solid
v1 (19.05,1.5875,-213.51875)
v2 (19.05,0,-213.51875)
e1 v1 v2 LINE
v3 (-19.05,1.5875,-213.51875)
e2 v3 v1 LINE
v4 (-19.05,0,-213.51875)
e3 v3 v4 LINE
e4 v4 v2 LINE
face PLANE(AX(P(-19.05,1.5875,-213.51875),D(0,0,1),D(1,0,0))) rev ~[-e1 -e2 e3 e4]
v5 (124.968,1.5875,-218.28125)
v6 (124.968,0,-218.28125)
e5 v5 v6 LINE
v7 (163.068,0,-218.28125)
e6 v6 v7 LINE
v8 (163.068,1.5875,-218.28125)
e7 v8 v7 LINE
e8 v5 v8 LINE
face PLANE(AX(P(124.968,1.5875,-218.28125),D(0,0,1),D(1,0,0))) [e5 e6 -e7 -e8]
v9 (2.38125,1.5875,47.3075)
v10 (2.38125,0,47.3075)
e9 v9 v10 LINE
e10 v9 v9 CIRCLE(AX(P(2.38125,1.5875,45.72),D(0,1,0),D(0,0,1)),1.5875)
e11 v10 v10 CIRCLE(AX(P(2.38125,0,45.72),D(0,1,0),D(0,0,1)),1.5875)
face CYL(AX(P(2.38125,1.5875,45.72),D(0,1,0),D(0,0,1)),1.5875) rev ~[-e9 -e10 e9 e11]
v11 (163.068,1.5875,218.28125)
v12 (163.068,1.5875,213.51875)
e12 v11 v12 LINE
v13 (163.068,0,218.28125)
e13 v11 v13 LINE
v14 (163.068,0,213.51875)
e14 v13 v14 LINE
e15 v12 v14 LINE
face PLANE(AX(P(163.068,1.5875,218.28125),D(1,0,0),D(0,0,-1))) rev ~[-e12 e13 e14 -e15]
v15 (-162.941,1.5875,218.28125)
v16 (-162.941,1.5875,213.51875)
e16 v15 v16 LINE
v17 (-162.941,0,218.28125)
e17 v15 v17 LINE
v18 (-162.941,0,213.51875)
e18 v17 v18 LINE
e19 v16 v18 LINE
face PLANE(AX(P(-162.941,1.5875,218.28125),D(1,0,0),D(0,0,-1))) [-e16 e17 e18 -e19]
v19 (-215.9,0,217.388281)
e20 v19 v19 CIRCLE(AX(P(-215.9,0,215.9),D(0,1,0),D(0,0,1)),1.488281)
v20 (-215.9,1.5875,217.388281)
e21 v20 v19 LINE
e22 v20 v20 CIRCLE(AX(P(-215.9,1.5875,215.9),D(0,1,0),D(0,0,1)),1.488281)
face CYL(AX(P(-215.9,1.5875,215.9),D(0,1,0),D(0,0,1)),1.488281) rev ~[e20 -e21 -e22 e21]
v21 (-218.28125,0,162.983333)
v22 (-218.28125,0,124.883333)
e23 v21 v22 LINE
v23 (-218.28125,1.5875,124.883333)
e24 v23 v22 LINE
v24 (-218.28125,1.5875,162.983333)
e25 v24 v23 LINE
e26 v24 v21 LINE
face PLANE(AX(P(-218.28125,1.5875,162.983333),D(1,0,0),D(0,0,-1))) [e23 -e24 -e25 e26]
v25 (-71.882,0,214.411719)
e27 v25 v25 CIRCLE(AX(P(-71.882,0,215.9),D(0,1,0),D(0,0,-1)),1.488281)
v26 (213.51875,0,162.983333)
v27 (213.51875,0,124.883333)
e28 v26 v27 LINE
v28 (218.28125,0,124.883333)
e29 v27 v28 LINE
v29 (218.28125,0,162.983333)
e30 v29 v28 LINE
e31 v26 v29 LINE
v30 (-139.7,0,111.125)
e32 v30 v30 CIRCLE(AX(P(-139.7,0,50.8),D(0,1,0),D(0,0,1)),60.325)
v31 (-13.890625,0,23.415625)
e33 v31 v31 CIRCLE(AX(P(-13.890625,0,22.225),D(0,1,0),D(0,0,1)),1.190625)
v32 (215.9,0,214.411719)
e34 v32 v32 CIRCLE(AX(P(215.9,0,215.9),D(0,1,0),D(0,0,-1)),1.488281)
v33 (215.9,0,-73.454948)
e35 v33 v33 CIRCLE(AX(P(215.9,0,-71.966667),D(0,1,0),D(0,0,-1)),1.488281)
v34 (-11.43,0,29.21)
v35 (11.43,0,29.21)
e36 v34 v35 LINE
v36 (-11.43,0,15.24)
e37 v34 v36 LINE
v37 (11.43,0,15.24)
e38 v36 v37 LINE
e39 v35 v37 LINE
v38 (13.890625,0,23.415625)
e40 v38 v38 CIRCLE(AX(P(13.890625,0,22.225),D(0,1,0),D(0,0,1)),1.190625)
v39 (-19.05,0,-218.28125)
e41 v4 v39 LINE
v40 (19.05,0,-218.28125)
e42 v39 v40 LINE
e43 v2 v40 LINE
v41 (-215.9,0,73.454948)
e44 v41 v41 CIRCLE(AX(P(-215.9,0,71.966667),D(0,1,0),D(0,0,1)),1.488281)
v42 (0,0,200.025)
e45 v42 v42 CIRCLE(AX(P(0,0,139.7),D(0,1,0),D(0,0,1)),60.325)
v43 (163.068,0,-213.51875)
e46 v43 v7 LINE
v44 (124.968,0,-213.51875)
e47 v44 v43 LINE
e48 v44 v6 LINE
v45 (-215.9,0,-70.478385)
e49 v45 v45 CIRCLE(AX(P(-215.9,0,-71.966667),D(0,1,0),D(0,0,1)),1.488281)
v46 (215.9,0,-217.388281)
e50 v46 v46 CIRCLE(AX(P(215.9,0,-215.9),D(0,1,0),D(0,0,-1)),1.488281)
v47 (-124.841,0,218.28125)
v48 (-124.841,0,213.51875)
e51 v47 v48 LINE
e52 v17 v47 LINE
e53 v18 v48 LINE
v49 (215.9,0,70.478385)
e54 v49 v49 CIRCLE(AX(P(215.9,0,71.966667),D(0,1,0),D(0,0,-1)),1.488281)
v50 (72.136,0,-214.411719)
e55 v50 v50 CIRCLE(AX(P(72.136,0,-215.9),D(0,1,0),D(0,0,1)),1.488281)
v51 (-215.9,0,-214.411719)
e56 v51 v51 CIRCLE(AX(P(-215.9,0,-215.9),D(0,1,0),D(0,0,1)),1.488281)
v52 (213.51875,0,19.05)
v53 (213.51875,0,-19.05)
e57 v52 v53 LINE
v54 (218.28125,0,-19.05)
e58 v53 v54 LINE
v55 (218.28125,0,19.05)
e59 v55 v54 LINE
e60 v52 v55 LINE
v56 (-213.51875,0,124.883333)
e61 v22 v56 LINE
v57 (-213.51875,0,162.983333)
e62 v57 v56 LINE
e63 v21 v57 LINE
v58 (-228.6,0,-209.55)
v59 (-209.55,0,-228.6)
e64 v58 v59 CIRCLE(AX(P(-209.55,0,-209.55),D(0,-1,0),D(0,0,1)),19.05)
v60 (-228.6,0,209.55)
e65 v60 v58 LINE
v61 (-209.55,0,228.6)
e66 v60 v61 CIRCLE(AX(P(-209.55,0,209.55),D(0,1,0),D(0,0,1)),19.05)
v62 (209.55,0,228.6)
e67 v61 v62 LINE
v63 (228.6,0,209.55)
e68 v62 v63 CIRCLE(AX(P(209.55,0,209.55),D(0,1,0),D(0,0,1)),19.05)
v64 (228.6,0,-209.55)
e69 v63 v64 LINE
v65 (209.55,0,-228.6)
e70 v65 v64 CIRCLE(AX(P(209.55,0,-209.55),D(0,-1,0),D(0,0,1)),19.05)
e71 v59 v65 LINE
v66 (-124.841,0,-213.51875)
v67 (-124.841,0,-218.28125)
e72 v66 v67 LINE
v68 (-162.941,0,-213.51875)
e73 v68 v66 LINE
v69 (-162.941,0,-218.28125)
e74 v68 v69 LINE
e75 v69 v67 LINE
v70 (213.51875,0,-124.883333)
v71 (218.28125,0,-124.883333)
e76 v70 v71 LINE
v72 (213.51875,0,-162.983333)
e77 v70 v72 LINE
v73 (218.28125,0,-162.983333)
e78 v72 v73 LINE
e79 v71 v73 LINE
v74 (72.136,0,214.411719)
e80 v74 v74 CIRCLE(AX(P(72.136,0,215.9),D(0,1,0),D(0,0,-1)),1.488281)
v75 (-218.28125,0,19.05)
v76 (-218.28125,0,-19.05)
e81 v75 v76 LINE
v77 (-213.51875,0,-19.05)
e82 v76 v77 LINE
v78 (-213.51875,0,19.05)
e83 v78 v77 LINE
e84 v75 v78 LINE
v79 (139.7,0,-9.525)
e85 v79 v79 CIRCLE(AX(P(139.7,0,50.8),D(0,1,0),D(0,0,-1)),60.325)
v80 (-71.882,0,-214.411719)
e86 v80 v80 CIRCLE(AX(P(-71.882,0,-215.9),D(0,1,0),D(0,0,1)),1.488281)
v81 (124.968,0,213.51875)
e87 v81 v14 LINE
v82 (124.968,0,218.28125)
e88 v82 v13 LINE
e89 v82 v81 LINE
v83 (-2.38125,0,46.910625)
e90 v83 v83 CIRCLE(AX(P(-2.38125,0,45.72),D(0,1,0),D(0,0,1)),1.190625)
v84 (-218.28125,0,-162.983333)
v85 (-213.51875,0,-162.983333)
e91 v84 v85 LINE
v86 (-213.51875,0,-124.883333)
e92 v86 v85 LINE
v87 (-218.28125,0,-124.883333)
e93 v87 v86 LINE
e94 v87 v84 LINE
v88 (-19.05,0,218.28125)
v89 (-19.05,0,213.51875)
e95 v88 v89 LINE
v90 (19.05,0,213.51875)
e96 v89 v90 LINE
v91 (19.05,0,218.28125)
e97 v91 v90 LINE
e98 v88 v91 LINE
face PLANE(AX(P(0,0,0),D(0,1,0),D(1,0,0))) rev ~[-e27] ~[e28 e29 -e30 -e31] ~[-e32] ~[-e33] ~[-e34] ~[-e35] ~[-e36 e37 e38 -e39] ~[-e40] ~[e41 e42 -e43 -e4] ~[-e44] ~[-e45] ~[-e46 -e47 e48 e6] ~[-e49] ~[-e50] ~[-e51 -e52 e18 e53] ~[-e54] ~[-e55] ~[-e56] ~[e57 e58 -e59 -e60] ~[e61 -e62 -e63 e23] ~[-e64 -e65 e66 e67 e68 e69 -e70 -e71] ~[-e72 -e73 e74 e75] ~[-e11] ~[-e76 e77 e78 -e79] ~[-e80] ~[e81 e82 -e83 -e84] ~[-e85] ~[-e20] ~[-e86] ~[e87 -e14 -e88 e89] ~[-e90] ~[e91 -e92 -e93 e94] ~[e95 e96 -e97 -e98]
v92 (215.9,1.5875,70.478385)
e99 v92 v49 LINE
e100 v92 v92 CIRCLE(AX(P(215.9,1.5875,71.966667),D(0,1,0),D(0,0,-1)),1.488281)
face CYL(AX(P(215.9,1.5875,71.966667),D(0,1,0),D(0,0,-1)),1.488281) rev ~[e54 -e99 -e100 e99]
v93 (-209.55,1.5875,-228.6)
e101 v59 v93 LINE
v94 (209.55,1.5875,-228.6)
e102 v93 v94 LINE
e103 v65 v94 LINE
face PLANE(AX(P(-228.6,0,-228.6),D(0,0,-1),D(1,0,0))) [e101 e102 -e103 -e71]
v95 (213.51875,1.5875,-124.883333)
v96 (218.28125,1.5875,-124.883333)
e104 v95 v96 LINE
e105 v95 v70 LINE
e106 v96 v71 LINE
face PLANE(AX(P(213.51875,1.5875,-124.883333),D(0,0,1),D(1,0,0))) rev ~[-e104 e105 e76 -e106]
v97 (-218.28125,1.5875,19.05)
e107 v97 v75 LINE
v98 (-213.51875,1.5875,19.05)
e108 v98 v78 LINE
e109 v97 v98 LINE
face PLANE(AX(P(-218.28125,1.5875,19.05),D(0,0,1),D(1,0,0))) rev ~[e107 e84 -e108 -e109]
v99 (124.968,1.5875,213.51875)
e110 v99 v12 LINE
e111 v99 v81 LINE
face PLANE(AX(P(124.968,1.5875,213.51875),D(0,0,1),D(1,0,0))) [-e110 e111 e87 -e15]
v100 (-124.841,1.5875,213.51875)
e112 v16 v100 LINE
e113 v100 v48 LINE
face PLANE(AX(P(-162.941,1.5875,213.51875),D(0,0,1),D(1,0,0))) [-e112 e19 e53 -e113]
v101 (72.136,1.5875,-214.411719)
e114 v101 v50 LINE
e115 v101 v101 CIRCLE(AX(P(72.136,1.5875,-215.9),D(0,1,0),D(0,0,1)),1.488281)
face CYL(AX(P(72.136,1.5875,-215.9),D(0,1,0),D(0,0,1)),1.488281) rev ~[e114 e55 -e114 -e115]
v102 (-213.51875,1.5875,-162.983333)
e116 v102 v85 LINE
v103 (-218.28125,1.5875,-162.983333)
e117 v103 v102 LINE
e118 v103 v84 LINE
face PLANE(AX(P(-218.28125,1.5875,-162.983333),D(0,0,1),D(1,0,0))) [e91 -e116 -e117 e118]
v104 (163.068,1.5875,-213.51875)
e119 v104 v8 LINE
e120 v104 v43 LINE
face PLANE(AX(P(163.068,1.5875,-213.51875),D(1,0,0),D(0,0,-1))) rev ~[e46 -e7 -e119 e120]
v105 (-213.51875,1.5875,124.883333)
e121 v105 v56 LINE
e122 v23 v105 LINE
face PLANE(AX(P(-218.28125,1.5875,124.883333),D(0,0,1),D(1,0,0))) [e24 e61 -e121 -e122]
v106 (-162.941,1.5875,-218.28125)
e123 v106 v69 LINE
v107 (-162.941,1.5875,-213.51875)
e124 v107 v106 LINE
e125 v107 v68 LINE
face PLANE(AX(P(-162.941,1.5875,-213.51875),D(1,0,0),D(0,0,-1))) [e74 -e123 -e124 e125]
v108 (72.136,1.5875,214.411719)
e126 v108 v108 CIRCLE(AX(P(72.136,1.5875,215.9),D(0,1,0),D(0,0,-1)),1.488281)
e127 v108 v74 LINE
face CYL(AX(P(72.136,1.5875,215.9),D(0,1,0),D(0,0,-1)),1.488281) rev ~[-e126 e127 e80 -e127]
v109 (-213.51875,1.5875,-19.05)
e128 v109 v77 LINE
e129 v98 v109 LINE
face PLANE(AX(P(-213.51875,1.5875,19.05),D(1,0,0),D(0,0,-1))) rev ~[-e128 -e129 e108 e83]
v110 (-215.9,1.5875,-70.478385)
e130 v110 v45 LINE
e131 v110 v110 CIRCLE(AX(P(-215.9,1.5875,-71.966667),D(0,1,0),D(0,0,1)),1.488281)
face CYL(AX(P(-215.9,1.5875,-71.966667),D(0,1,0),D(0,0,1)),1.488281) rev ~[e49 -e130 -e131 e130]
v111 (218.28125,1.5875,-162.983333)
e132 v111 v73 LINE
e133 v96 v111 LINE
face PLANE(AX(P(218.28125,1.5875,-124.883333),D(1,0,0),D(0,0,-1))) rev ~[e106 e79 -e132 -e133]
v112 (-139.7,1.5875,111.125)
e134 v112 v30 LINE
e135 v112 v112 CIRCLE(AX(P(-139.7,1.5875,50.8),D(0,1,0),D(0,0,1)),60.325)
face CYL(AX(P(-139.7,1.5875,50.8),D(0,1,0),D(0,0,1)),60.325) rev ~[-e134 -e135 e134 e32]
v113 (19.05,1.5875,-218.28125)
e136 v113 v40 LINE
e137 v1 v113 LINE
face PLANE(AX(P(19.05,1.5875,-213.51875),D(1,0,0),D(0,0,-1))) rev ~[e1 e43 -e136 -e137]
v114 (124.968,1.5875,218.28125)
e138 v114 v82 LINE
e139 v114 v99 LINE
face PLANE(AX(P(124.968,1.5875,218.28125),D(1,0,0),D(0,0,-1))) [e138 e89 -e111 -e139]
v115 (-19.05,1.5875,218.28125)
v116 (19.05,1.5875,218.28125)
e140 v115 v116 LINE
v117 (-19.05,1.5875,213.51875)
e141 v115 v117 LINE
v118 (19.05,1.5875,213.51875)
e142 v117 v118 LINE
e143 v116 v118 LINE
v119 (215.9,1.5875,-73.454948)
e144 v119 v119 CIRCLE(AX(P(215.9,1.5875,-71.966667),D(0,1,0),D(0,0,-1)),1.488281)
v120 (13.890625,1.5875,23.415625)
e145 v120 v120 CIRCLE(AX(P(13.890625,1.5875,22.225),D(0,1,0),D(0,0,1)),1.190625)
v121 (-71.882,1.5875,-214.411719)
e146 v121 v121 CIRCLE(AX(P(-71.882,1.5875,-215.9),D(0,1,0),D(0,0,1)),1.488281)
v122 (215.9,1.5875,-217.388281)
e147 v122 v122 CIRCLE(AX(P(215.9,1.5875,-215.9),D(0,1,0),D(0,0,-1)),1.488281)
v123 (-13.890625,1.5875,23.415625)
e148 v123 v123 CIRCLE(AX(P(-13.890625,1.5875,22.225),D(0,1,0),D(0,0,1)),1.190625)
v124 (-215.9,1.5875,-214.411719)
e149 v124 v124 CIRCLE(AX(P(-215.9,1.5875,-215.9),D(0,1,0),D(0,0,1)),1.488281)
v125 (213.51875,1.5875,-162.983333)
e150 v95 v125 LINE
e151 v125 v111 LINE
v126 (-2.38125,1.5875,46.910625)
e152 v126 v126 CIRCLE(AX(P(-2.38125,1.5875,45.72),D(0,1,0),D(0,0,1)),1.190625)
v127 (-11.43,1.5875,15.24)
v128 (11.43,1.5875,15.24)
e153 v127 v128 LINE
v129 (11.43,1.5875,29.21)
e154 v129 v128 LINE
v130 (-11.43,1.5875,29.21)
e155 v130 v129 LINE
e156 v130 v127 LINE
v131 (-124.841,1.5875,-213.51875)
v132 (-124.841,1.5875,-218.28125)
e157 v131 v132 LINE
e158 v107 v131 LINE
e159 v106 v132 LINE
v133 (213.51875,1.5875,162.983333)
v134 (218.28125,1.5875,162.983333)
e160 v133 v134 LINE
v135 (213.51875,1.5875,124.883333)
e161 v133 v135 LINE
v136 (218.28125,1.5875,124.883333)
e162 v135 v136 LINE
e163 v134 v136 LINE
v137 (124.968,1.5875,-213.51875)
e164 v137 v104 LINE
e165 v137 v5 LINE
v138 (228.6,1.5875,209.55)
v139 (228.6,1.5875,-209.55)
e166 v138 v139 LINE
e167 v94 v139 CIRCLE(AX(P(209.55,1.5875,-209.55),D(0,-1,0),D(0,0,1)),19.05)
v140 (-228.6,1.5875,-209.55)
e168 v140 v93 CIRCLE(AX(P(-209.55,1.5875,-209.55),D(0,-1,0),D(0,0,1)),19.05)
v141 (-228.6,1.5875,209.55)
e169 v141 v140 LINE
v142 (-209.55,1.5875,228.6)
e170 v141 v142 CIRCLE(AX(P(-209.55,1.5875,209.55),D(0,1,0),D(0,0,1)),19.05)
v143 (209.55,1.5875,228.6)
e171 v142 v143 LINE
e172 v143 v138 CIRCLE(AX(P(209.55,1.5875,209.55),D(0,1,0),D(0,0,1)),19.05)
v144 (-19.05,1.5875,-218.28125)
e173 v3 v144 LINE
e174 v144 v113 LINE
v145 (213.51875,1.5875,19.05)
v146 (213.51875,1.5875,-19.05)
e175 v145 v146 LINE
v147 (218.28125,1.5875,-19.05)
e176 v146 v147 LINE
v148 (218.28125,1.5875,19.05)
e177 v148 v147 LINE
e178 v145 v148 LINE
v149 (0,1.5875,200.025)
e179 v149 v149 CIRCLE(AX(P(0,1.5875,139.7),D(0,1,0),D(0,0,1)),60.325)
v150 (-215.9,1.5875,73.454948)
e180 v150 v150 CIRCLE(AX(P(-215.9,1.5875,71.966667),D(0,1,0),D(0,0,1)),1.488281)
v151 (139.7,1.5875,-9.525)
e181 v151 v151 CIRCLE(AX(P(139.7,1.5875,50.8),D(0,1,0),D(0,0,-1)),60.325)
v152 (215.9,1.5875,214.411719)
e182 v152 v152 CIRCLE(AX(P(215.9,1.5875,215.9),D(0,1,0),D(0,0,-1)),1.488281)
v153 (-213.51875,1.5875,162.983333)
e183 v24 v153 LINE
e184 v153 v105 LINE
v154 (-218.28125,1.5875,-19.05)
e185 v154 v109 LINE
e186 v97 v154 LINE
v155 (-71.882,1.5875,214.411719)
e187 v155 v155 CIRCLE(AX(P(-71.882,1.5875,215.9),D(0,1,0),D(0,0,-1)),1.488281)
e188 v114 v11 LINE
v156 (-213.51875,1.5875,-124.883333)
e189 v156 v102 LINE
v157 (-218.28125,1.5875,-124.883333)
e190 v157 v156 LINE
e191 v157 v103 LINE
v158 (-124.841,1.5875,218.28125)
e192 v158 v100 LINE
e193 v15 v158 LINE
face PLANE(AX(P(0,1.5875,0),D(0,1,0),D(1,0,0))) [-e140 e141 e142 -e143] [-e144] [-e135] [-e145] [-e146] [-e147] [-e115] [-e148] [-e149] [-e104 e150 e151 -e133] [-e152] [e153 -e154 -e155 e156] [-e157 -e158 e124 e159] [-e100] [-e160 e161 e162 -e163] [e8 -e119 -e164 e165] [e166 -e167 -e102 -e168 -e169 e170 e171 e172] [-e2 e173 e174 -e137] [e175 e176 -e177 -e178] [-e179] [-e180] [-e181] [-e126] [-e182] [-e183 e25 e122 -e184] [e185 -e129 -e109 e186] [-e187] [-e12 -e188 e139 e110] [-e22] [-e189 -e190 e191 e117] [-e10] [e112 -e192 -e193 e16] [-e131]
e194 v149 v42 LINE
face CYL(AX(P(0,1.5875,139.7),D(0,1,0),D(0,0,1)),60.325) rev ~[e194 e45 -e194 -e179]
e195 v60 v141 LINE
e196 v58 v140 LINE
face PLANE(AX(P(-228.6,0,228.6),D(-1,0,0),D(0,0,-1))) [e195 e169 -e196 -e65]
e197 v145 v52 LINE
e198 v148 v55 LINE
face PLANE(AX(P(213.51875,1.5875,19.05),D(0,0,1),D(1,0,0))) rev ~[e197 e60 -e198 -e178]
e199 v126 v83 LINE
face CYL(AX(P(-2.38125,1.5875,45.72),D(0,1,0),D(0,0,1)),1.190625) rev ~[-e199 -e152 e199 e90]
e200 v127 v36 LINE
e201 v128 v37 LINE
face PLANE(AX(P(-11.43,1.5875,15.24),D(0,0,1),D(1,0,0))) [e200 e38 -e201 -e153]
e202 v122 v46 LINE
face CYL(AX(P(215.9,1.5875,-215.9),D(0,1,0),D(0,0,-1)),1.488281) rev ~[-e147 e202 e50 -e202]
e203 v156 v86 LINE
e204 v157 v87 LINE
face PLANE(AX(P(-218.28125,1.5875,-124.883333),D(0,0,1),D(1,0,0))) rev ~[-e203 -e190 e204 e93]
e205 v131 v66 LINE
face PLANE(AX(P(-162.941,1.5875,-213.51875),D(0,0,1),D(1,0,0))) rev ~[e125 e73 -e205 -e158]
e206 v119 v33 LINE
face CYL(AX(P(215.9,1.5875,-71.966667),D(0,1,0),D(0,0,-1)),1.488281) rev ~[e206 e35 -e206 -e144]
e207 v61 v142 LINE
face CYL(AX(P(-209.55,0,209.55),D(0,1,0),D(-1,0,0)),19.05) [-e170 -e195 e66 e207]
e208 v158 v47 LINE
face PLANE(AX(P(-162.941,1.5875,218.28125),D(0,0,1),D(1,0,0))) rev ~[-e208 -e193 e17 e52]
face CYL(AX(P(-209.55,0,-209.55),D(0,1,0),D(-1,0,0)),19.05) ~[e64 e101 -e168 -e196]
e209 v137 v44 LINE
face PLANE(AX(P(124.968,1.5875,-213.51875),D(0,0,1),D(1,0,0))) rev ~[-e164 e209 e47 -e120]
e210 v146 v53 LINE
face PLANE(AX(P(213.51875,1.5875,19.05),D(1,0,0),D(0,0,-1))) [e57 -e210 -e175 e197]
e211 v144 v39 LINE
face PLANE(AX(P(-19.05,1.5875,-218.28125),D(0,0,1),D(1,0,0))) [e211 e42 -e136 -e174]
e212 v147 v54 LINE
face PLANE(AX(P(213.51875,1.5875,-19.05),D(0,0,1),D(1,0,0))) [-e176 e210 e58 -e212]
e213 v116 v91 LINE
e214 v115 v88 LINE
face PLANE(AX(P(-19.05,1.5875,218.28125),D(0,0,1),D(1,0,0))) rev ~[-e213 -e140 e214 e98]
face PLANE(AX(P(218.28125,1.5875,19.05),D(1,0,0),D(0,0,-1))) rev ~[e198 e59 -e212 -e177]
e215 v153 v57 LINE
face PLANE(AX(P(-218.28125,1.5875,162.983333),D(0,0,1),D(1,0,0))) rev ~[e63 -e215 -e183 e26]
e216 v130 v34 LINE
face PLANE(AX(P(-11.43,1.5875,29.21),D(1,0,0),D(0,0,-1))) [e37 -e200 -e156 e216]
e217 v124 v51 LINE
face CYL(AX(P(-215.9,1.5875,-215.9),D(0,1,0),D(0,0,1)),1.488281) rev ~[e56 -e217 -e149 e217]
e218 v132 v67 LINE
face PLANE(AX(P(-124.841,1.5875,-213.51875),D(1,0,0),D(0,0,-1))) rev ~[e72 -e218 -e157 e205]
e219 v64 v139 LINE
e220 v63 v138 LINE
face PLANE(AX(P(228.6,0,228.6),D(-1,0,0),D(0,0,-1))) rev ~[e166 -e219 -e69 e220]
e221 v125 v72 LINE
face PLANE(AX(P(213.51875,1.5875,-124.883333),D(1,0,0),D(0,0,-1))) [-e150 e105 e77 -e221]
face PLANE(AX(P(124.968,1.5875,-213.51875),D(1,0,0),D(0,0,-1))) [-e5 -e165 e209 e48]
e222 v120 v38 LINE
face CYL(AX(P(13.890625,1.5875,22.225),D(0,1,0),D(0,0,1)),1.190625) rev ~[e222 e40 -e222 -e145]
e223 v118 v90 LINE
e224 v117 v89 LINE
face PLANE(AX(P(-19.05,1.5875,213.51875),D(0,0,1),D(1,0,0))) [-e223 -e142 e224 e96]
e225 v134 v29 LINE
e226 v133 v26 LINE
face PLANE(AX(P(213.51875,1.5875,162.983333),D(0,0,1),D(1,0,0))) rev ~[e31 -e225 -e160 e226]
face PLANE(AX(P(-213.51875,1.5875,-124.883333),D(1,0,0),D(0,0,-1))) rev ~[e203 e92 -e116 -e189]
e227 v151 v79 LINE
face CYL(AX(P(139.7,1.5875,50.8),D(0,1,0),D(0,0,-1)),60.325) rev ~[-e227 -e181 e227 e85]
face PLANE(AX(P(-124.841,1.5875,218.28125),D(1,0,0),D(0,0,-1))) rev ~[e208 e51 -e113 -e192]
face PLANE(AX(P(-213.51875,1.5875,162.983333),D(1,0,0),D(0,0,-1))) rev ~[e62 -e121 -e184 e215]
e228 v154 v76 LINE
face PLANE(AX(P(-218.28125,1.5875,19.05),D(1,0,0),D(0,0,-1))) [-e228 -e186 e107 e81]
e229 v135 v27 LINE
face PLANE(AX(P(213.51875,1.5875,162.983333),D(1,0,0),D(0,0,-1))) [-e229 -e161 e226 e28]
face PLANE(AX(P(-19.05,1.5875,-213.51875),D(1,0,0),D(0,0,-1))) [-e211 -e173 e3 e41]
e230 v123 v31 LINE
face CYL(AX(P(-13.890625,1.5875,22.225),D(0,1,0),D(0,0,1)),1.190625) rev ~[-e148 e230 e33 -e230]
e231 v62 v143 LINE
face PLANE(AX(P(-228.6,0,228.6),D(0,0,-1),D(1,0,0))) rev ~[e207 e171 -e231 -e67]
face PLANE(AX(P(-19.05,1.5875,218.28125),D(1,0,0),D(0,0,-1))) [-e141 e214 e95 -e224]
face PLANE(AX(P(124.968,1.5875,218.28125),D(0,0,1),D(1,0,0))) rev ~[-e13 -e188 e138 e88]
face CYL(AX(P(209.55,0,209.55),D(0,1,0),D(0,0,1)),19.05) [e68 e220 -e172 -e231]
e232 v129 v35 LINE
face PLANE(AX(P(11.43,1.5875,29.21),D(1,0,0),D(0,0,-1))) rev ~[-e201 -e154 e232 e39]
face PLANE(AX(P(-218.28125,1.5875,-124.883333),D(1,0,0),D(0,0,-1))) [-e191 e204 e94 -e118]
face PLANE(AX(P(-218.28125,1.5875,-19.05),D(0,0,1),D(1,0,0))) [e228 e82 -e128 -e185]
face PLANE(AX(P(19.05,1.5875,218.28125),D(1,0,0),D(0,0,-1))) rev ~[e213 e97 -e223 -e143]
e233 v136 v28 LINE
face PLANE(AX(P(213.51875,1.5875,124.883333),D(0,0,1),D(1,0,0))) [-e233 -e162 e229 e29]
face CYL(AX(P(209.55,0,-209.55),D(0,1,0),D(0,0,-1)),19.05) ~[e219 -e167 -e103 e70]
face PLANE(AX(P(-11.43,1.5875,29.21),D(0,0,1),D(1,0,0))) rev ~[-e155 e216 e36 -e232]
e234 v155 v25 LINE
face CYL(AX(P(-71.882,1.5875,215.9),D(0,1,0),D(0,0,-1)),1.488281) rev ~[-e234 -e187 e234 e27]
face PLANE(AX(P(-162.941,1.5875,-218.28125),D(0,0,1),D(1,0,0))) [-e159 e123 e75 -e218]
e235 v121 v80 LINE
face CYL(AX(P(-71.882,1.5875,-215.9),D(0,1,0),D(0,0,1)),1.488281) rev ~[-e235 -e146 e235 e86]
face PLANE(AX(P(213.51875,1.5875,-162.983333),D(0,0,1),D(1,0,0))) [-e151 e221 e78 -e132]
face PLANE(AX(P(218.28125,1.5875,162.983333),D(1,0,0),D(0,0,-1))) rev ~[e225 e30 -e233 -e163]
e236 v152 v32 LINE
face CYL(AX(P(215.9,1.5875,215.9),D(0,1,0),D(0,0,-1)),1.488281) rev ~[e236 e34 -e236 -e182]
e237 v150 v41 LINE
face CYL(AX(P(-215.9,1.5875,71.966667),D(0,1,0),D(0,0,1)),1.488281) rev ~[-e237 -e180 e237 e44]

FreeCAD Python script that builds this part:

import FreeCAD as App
import Part
import Sketcher

V = App.Vector
Q = App.Units.Quantity


def edges_at(feature, points):
    """Names of the edges that pass closest to the given points."""
    edges = feature.Shape.Edges
    near = lambda p: min(range(len(edges)), key=lambda i: edges[i].distToShape(Part.Vertex(*p))[0])
    return sorted({f"Edge{near(p) + 1}" for p in points})

doc = App.newDocument("Part")
body = doc.addObject("PartDesign::Body", "Body")

# Sketch on XZ plane
sketch1 = body.newObject("Sketcher::SketchObject", "Sketch")
sketch1.AttachmentSupport = (doc.getObject("XZ_Plane"), [""])
sketch1.MapMode = "FlatFace"
sketch1.addGeometry(Part.LineSegment(V(-228.6, -228.6, 0), V(-228.6, 228.6, 0)), False)
sketch1.addGeometry(Part.LineSegment(V(-228.6, 228.6, 0), V(228.6, 228.6, 0)), False)
sketch1.addGeometry(Part.LineSegment(V(228.6, 228.6, 0), V(228.6, -228.6, 0)), False)
sketch1.addGeometry(Part.LineSegment(V(228.6, -228.6, 0), V(-228.6, -228.6, 0)), False)
sketch1.addConstraint(Sketcher.Constraint("Coincident", 0, 2, 1, 1))
sketch1.addConstraint(Sketcher.Constraint("Coincident", 1, 2, 2, 1))
sketch1.addConstraint(Sketcher.Constraint("Coincident", 2, 2, 3, 1))
sketch1.addConstraint(Sketcher.Constraint("Coincident", 3, 2, 0, 1))
sketch1.addConstraint(Sketcher.Constraint("Vertical", 0))
sketch1.addConstraint(Sketcher.Constraint("Horizontal", 1))
sketch1.addConstraint(Sketcher.Constraint("Vertical", 2))
sketch1.addConstraint(Sketcher.Constraint("Horizontal", 3))
sketch1.addConstraint(Sketcher.Constraint("Symmetric", 0, 2, 2, 2, -1, 1))
sketch1.addConstraint(Sketcher.Constraint("Equal", 3, 0))
sketch1.addConstraint(Sketcher.Constraint("DistanceX", 1, 1, 1, 2, Q("18 in")))
pad1 = body.newObject("PartDesign::Pad", "Pad")
pad1.Profile = sketch1
pad1.Length = Q("0.0625 in")
pad1.Reversed = True

# Sketch on XZ plane
sketch2 = body.newObject("Sketcher::SketchObject", "Sketch001")
sketch2.AttachmentSupport = (doc.getObject("XZ_Plane"), [""])
sketch2.MapMode = "FlatFace"
sketch2.AttachmentOffset = App.Placement(V(0, 0, -0.0625 * 25.4), App.Rotation())
sketch2.addGeometry(Part.Circle(V(0, 139.7, 0), V(0, 0, 1), 60.325), False)
sketch2.addGeometry(Part.Circle(V(-139.7, 50.8, 0), V(0, 0, 1), 60.325), False)
sketch2.addGeometry(Part.Circle(V(139.7, 50.8, 0), V(0, 0, 1), 60.325), False)
sketch2.addConstraint(Sketcher.Constraint("Equal", 0, 1))
sketch2.addConstraint(Sketcher.Constraint("Equal", 1, 2))
sketch2.addConstraint(Sketcher.Constraint("Symmetric", 1, 3, 2, 3, -2))
sketch2.addConstraint(Sketcher.Constraint("PointOnObject", 0, 3, -2))
sketch2.addConstraint(Sketcher.Constraint("Diameter", 0, Q("4.75 in")))
sketch2.addConstraint(Sketcher.Constraint("DistanceY", -1, 1, 1, 3, Q("2 in")))
sketch2.addConstraint(Sketcher.Constraint("DistanceX", 1, 3, 2, 3, Q("11 in")))
sketch2.addConstraint(Sketcher.Constraint("DistanceY", -1, 1, 0, 3, Q("5.5 in")))
pocket1 = body.newObject("PartDesign::Pocket", "Pocket")
pocket1.Profile = sketch2
pocket1.Length = Q("0.0625 in")
pocket1.Reversed = True

# Sketch on XZ plane
sketch3 = body.newObject("Sketcher::SketchObject", "Sketch002")
sketch3.AttachmentSupport = (doc.getObject("XZ_Plane"), [""])
sketch3.MapMode = "FlatFace"
sketch3.AttachmentOffset = App.Placement(V(0, 0, -0.0625 * 25.4), App.Rotation())
sketch3.addGeometry(Part.Circle(V(-2.38125, 45.72, 0), V(0, 0, 1), 1.190625), False)
sketch3.addGeometry(Part.Circle(V(2.38125, 45.72, 0), V(0, 0, 1), 1.5875), False)
sketch3.addConstraint(Sketcher.Constraint("Symmetric", 0, 3, 1, 3, -2))
sketch3.addConstraint(Sketcher.Constraint("Diameter", 0, Q("0.09375 in")))
sketch3.addConstraint(Sketcher.Constraint("Diameter", 1, Q("0.125 in")))
sketch3.addConstraint(Sketcher.Constraint("DistanceY", -1, 1, 0, 3, Q("1.8 in")))
sketch3.addConstraint(Sketcher.Constraint("DistanceX", 0, 3, -1, 1, Q("0.09375 in")))
pocket2 = body.newObject("PartDesign::Pocket", "Pocket001")
pocket2.Profile = sketch3
pocket2.Length = Q("0.0625 in")
pocket2.Reversed = True

# Sketch on XZ plane
sketch4 = body.newObject("Sketcher::SketchObject", "Sketch003")
sketch4.AttachmentSupport = (doc.getObject("XZ_Plane"), [""])
sketch4.MapMode = "FlatFace"
sketch4.AttachmentOffset = App.Placement(V(0, 0, -0.0625 * 25.4), App.Rotation())
sketch4.addGeometry(Part.Circle(V(-215.9, -215.9, 0), V(0, 0, 1), 1.488281), False)
sketch4.addGeometry(Part.Circle(V(-215.9, -71.966667, 0), V(0, 0, 1), 1.488281), False)
sketch4.addGeometry(Part.Circle(V(-215.9, 71.966667, 0), V(0, 0, 1), 1.488281), False)
sketch4.addGeometry(Part.Circle(V(-215.9, 215.9, 0), V(0, 0, 1), 1.488281), False)
sketch4.addGeometry(Part.Circle(V(-71.882, -215.9, 0), V(0, 0, 1), 1.488281), False)
sketch4.addGeometry(Part.Circle(V(72.136, -215.9, 0), V(0, 0, 1), 1.488281), False)
sketch4.addGeometry(Part.Circle(V(215.9, -215.9, 0), V(0, 0, 1), 1.488281), False)
sketch4.addGeometry(Part.Circle(V(215.9, -71.966667, 0), V(0, 0, 1), 1.488281), False)
sketch4.addGeometry(Part.Circle(V(215.9, 71.966667, 0), V(0, 0, 1), 1.488281), False)
sketch4.addGeometry(Part.Circle(V(215.9, 215.9, 0), V(0, 0, 1), 1.488281), False)
sketch4.addGeometry(Part.Circle(V(72.136, 215.9, 0), V(0, 0, 1), 1.488281), False)
sketch4.addGeometry(Part.Circle(V(-71.882, 215.9, 0), V(0, 0, 1), 1.488281), False)
sketch4.addConstraint(Sketcher.Constraint("Equal", 0, 1))
sketch4.addConstraint(Sketcher.Constraint("Equal", 1, 2))
sketch4.addConstraint(Sketcher.Constraint("Equal", 2, 3))
sketch4.addConstraint(Sketcher.Constraint("Equal", 3, 4))
sketch4.addConstraint(Sketcher.Constraint("Equal", 4, 5))
sketch4.addConstraint(Sketcher.Constraint("Equal", 5, 6))
sketch4.addConstraint(Sketcher.Constraint("Equal", 6, 7))
sketch4.addConstraint(Sketcher.Constraint("Equal", 7, 8))
sketch4.addConstraint(Sketcher.Constraint("Equal", 8, 9))
sketch4.addConstraint(Sketcher.Constraint("Equal", 9, 10))
sketch4.addConstraint(Sketcher.Constraint("Equal", 10, 11))
sketch4.addConstraint(Sketcher.Constraint("Symmetric", 3, 3, 6, 3, -1, 1))
sketch4.addConstraint(Sketcher.Constraint("Symmetric", 2, 3, 7, 3, -1, 1))
sketch4.addConstraint(Sketcher.Constraint("Symmetric", 1, 3, 8, 3, -1, 1))
sketch4.addConstraint(Sketcher.Constraint("Symmetric", 0, 3, 9, 3, -1, 1))
sketch4.addConstraint(Sketcher.Constraint("Symmetric", 0, 3, 6, 3, -2))
sketch4.addConstraint(Sketcher.Constraint("Symmetric", 1, 3, 7, 3, -2))
sketch4.addConstraint(Sketcher.Constraint("Symmetric", 5, 3, 10, 3, -1))
sketch4.addConstraint(Sketcher.Constraint("Symmetric", 4, 3, 11, 3, -1))
sketch4.addConstraint(Sketcher.Constraint("Horizontal", 0, 3, 4, 3))
sketch4.addConstraint(Sketcher.Constraint("Horizontal", 4, 3, 5, 3))
sketch4.addConstraint(Sketcher.Constraint("Vertical", 0, 3, 1, 3))
sketch4.addConstraint(Sketcher.Constraint("DistanceY", 0, 3, 3, 3, Q("17 in")))
sketch4.addConstraint(Sketcher.Constraint("DistanceX", 0, 3, 6, 3, Q("17 in")))
sketch4.addConstraint(Sketcher.Constraint("DistanceX", 4, 3, -1, 1, Q("2.83 in")))
sketch4.addConstraint(Sketcher.Constraint("DistanceX", -1, 1, 5, 3, Q("2.84 in")))
sketch4.addConstraint(Sketcher.Constraint("Diameter", 0, Q("2.976562 mm")))
sketch4.addConstraint(Sketcher.Constraint("DistanceY", 1, 3, -1, 1, Q("71.966667 mm")))
pocket3 = body.newObject("PartDesign::Pocket", "Pocket002")
pocket3.Profile = sketch4
pocket3.Length = Q("0.0625 in")
pocket3.Reversed = True

# Sketch on XZ plane
sketch5 = body.newObject("Sketcher::SketchObject", "Sketch004")
sketch5.AttachmentSupport = (doc.getObject("XZ_Plane"), [""])
sketch5.MapMode = "FlatFace"
sketch5.AttachmentOffset = App.Placement(V(0, 0, -0.0625 * 25.4), App.Rotation())
sketch5.addGeometry(Part.Circle(V(-13.890625, 22.225, 0), V(0, 0, 1), 1.190625), False)
sketch5.addGeometry(Part.Circle(V(13.890625, 22.225, 0), V(0, 0, 1), 1.190625), False)
sketch5.addGeometry(Part.LineSegment(V(-11.43, 15.24, 0), V(-11.43, 29.21, 0)), False)
sketch5.addGeometry(Part.LineSegment(V(-11.43, 29.21, 0), V(11.43, 29.21, 0)), False)
sketch5.addGeometry(Part.LineSegment(V(11.43, 29.21, 0), V(11.43, 15.24, 0)), False)
sketch5.addGeometry(Part.LineSegment(V(11.43, 15.24, 0), V(-11.43, 15.24, 0)), False)
sketch5.addConstraint(Sketcher.Constraint("Coincident", 2, 2, 3, 1))
sketch5.addConstraint(Sketcher.Constraint("Coincident", 3, 2, 4, 1))
sketch5.addConstraint(Sketcher.Constraint("Coincident", 4, 2, 5, 1))
sketch5.addConstraint(Sketcher.Constraint("Coincident", 5, 2, 2, 1))
sketch5.addConstraint(Sketcher.Constraint("Vertical", 2))
sketch5.addConstraint(Sketcher.Constraint("Horizontal", 3))
sketch5.addConstraint(Sketcher.Constraint("Vertical", 4))
sketch5.addConstraint(Sketcher.Constraint("Horizontal", 5))
sketch5.addConstraint(Sketcher.Constraint("Equal", 0, 1))
sketch5.addConstraint(Sketcher.Constraint("Symmetric", 0, 3, 1, 3, -2))
sketch5.addConstraint(Sketcher.Constraint("Diameter", 0, Q("0.09375 in")))
sketch5.addConstraint(Sketcher.Constraint("DistanceX", 3, 1, 3, 2, Q("0.9 in")))
sketch5.addConstraint(Sketcher.Constraint("DistanceY", 2, 1, 2, 2, Q("0.55 in")))
sketch5.addConstraint(Sketcher.Constraint("DistanceY", -1, 1, 4, 2, Q("0.6 in")))
sketch5.addConstraint(Sketcher.Constraint("DistanceX", 2, 2, -1, 1, Q("0.45 in")))
sketch5.addConstraint(Sketcher.Constraint("DistanceX", 0, 3, -1, 1, Q("0.546875 in")))
sketch5.addConstraint(Sketcher.Constraint("DistanceY", -1, 1, 0, 3, Q("0.875 in")))
pocket4 = body.newObject("PartDesign::Pocket", "Pocket003")
pocket4.Profile = sketch5
pocket4.Length = Q("0.0625 in")
pocket4.Reversed = True

# Sketch on XZ plane
sketch6 = body.newObject("Sketcher::SketchObject", "Sketch005")
sketch6.AttachmentSupport = (doc.getObject("XZ_Plane"), [""])
sketch6.MapMode = "FlatFace"
sketch6.AttachmentOffset = App.Placement(V(0, 0, -0.0625 * 25.4), App.Rotation())
sketch6.addGeometry(Part.LineSegment(V(-218.28125, 124.883333, 0), V(-218.28125, 162.983333, 0)), False)
sketch6.addGeometry(Part.LineSegment(V(-218.28125, 162.983333, 0), V(-213.51875, 162.983333, 0)), False)
sketch6.addGeometry(Part.LineSegment(V(-213.51875, 162.983333, 0), V(-213.51875, 124.883333, 0)), False)
sketch6.addGeometry(Part.LineSegment(V(-213.51875, 124.883333, 0), V(-218.28125, 124.883333, 0)), False)
sketch6.addGeometry(Part.LineSegment(V(-218.28125, -19.05, 0), V(-218.28125, 19.05, 0)), False)
sketch6.addGeometry(Part.LineSegment(V(-218.28125, 19.05, 0), V(-213.51875, 19.05, 0)), False)
sketch6.addGeometry(Part.LineSegment(V(-213.51875, 19.05, 0), V(-213.51875, -19.05, 0)), False)
sketch6.addGeometry(Part.LineSegment(V(-213.51875, -19.05, 0), V(-218.28125, -19.05, 0)), False)
sketch6.addGeometry(Part.LineSegment(V(213.51875, 124.883333, 0), V(213.51875, 162.983333, 0)), False)
sketch6.addGeometry(Part.LineSegment(V(213.51875, 162.983333, 0), V(218.28125, 162.983333, 0)), False)
sketch6.addGeometry(Part.LineSegment(V(218.28125, 162.983333, 0), V(218.28125, 124.883333, 0)), False)
sketch6.addGeometry(Part.LineSegment(V(218.28125, 124.883333, 0), V(213.51875, 124.883333, 0)), False)
sketch6.addGeometry(Part.LineSegment(V(-218.28125, -162.983333, 0), V(-218.28125, -124.883333, 0)), False)
sketch6.addGeometry(Part.LineSegment(V(-218.28125, -124.883333, 0), V(-213.51875, -124.883333, 0)), False)
sketch6.addGeometry(Part.LineSegment(V(-213.51875, -124.883333, 0), V(-213.51875, -162.983333, 0)), False)
sketch6.addGeometry(Part.LineSegment(V(-213.51875, -162.983333, 0), V(-218.28125, -162.983333, 0)), False)
sketch6.addGeometry(Part.LineSegment(V(213.51875, -19.05, 0), V(213.51875, 19.05, 0)), False)
sketch6.addGeometry(Part.LineSegment(V(213.51875, 19.05, 0), V(218.28125, 19.05, 0)), False)
sketch6.addGeometry(Part.LineSegment(V(218.28125, 19.05, 0), V(218.28125, -19.05, 0)), False)
sketch6.addGeometry(Part.LineSegment(V(218.28125, -19.05, 0), V(213.51875, -19.05, 0)), False)
sketch6.addGeometry(Part.LineSegment(V(213.51875, -162.983333, 0), V(213.51875, -124.883333, 0)), False)
sketch6.addGeometry(Part.LineSegment(V(213.51875, -124.883333, 0), V(218.28125, -124.883333, 0)), False)
sketch6.addGeometry(Part.LineSegment(V(218.28125, -124.883333, 0), V(218.28125, -162.983333, 0)), False)
sketch6.addGeometry(Part.LineSegment(V(218.28125, -162.983333, 0), V(213.51875, -162.983333, 0)), False)
sketch6.addGeometry(Part.LineSegment(V(-162.941, -218.28125, 0), V(-162.941, -213.51875, 0)), False)
sketch6.addGeometry(Part.LineSegment(V(-162.941, -213.51875, 0), V(-124.841, -213.51875, 0)), False)
sketch6.addGeometry(Part.LineSegment(V(-124.841, -213.51875, 0), V(-124.841, -218.28125, 0)), False)
sketch6.addGeometry(Part.LineSegment(V(-124.841, -218.28125, 0), V(-162.941, -218.28125, 0)), False)
sketch6.addGeometry(Part.LineSegment(V(124.968, -218.28125, 0), V(124.968, -213.51875, 0)), False)
sketch6.addGeometry(Part.LineSegment(V(124.968, -213.51875, 0), V(163.068, -213.51875, 0)), False)
sketch6.addGeometry(Part.LineSegment(V(163.068, -213.51875, 0), V(163.068, -218.28125, 0)), False)
sketch6.addGeometry(Part.LineSegment(V(163.068, -218.28125, 0), V(124.968, -218.28125, 0)), False)
sketch6.addGeometry(Part.LineSegment(V(-19.05, -218.28125, 0), V(-19.05, -213.51875, 0)), False)
sketch6.addGeometry(Part.LineSegment(V(-19.05, -213.51875, 0), V(19.05, -213.51875, 0)), False)
sketch6.addGeometry(Part.LineSegment(V(19.05, -213.51875, 0), V(19.05, -218.28125, 0)), False)
sketch6.addGeometry(Part.LineSegment(V(19.05, -218.28125, 0), V(-19.05, -218.28125, 0)), False)
sketch6.addGeometry(Part.LineSegment(V(124.968, 213.51875, 0), V(124.968, 218.28125, 0)), False)
sketch6.addGeometry(Part.LineSegment(V(124.968, 218.28125, 0), V(163.068, 218.28125, 0)), False)
sketch6.addGeometry(Part.LineSegment(V(163.068, 218.28125, 0), V(163.068, 213.51875, 0)), False)
sketch6.addGeometry(Part.LineSegment(V(163.068, 213.51875, 0), V(124.968, 213.51875, 0)), False)
sketch6.addGeometry(Part.LineSegment(V(-19.05, 213.51875, 0), V(-19.05, 218.28125, 0)), False)
sketch6.addGeometry(Part.LineSegment(V(-19.05, 218.28125, 0), V(19.05, 218.28125, 0)), False)
sketch6.addGeometry(Part.LineSegment(V(19.05, 218.28125, 0), V(19.05, 213.51875, 0)), False)
sketch6.addGeometry(Part.LineSegment(V(19.05, 213.51875, 0), V(-19.05, 213.51875, 0)), False)
sketch6.addGeometry(Part.LineSegment(V(-162.941, 213.51875, 0), V(-162.941, 218.28125, 0)), False)
sketch6.addGeometry(Part.LineSegment(V(-162.941, 218.28125, 0), V(-124.841, 218.28125, 0)), False)
sketch6.addGeometry(Part.LineSegment(V(-124.841, 218.28125, 0), V(-124.841, 213.51875, 0)), False)
sketch6.addGeometry(Part.LineSegment(V(-124.841, 213.51875, 0), V(-162.941, 213.51875, 0)), False)
sketch6.addConstraint(Sketcher.Constraint("Coincident", 0, 2, 1, 1))
sketch6.addConstraint(Sketcher.Constraint("Coincident", 1, 2, 2, 1))
sketch6.addConstraint(Sketcher.Constraint("Coincident", 2, 2, 3, 1))
sketch6.addConstraint(Sketcher.Constraint("Coincident", 3, 2, 0, 1))
sketch6.addConstraint(Sketcher.Constraint("Coincident", 4, 2, 5, 1))
sketch6.addConstraint(Sketcher.Constraint("Coincident", 5, 2, 6, 1))
sketch6.addConstraint(Sketcher.Constraint("Coincident", 6, 2, 7, 1))
sketch6.addConstraint(Sketcher.Constraint("Coincident", 7, 2, 4, 1))
sketch6.addConstraint(Sketcher.Constraint("Coincident", 8, 2, 9, 1))
sketch6.addConstraint(Sketcher.Constraint("Coincident", 9, 2, 10, 1))
sketch6.addConstraint(Sketcher.Constraint("Coincident", 10, 2, 11, 1))
sketch6.addConstraint(Sketcher.Constraint("Coincident", 11, 2, 8, 1))
sketch6.addConstraint(Sketcher.Constraint("Coincident", 12, 2, 13, 1))
sketch6.addConstraint(Sketcher.Constraint("Coincident", 13, 2, 14, 1))
sketch6.addConstraint(Sketcher.Constraint("Coincident", 14, 2, 15, 1))
sketch6.addConstraint(Sketcher.Constraint("Coincident", 15, 2, 12, 1))
sketch6.addConstraint(Sketcher.Constraint("Coincident", 16, 2, 17, 1))
sketch6.addConstraint(Sketcher.Constraint("Coincident", 17, 2, 18, 1))
sketch6.addConstraint(Sketcher.Constraint("Coincident", 18, 2, 19, 1))
sketch6.addConstraint(Sketcher.Constraint("Coincident", 19, 2, 16, 1))
sketch6.addConstraint(Sketcher.Constraint("Coincident", 20, 2, 21, 1))
sketch6.addConstraint(Sketcher.Constraint("Coincident", 21, 2, 22, 1))
sketch6.addConstraint(Sketcher.Constraint("Coincident", 22, 2, 23, 1))
sketch6.addConstraint(Sketcher.Constraint("Coincident", 23, 2, 20, 1))
sketch6.addConstraint(Sketcher.Constraint("Coincident", 24, 2, 25, 1))
sketch6.addConstraint(Sketcher.Constraint("Coincident", 25, 2, 26, 1))
sketch6.addConstraint(Sketcher.Constraint("Coincident", 26, 2, 27, 1))
sketch6.addConstraint(Sketcher.Constraint("Coincident", 27, 2, 24, 1))
sketch6.addConstraint(Sketcher.Constraint("Coincident", 28, 2, 29, 1))
sketch6.addConstraint(Sketcher.Constraint("Coincident", 29, 2, 30, 1))
sketch6.addConstraint(Sketcher.Constraint("Coincident", 30, 2, 31, 1))
sketch6.addConstraint(Sketcher.Constraint("Coincident", 31, 2, 28, 1))
sketch6.addConstraint(Sketcher.Constraint("Coincident", 32, 2, 33, 1))
sketch6.addConstraint(Sketcher.Constraint("Coincident", 33, 2, 34, 1))
sketch6.addConstraint(Sketcher.Constraint("Coincident", 34, 2, 35, 1))
sketch6.addConstraint(Sketcher.Constraint("Coincident", 35, 2, 32, 1))
sketch6.addConstraint(Sketcher.Constraint("Coincident", 36, 2, 37, 1))
sketch6.addConstraint(Sketcher.Constraint("Coincident", 37, 2, 38, 1))
sketch6.addConstraint(Sketcher.Constraint("Coincident", 38, 2, 39, 1))
sketch6.addConstraint(Sketcher.Constraint("Coincident", 39, 2, 36, 1))
sketch6.addConstraint(Sketcher.Constraint("Coincident", 40, 2, 41, 1))
sketch6.addConstraint(Sketcher.Constraint("Coincident", 41, 2, 42, 1))
sketch6.addConstraint(Sketcher.Constraint("Coincident", 42, 2, 43, 1))
sketch6.addConstraint(Sketcher.Constraint("Coincident", 43, 2, 40, 1))
sketch6.addConstraint(Sketcher.Constraint("Coincident", 44, 2, 45, 1))
sketch6.addConstraint(Sketcher.Constraint("Coincident", 45, 2, 46, 1))
sketch6.addConstraint(Sketcher.Constraint("Coincident", 46, 2, 47, 1))
sketch6.addConstraint(Sketcher.Constraint("Coincident", 47, 2, 44, 1))
sketch6.addConstraint(Sketcher.Constraint("Vertical", 0))
sketch6.addConstraint(Sketcher.Constraint("Horizontal", 1))
sketch6.addConstraint(Sketcher.Constraint("Vertical", 2))
sketch6.addConstraint(Sketcher.Constraint("Horizontal", 3))
sketch6.addConstraint(Sketcher.Constraint("Vertical", 4))
sketch6.addConstraint(Sketcher.Constraint("Horizontal", 5))
sketch6.addConstraint(Sketcher.Constraint("Vertical", 6))
sketch6.addConstraint(Sketcher.Constraint("Horizontal", 7))
sketch6.addConstraint(Sketcher.Constraint("Vertical", 8))
sketch6.addConstraint(Sketcher.Constraint("Horizontal", 9))
sketch6.addConstraint(Sketcher.Constraint("Vertical", 10))
sketch6.addConstraint(Sketcher.Constraint("Horizontal", 11))
sketch6.addConstraint(Sketcher.Constraint("Vertical", 12))
sketch6.addConstraint(Sketcher.Constraint("Horizontal", 13))
sketch6.addConstraint(Sketcher.Constraint("Vertical", 14))
sketch6.addConstraint(Sketcher.Constraint("Horizontal", 15))
sketch6.addConstraint(Sketcher.Constraint("Vertical", 16))
sketch6.addConstraint(Sketcher.Constraint("Horizontal", 17))
sketch6.addConstraint(Sketcher.Constraint("Vertical", 18))
sketch6.addConstraint(Sketcher.Constraint("Horizontal", 19))
sketch6.addConstraint(Sketcher.Constraint("Vertical", 20))
sketch6.addConstraint(Sketcher.Constraint("Horizontal", 21))
sketch6.addConstraint(Sketcher.Constraint("Vertical", 22))
sketch6.addConstraint(Sketcher.Constraint("Horizontal", 23))
sketch6.addConstraint(Sketcher.Constraint("Vertical", 24))
sketch6.addConstraint(Sketcher.Constraint("Horizontal", 25))
sketch6.addConstraint(Sketcher.Constraint("Vertical", 26))
sketch6.addConstraint(Sketcher.Constraint("Horizontal", 27))
sketch6.addConstraint(Sketcher.Constraint("Vertical", 28))
sketch6.addConstraint(Sketcher.Constraint("Horizontal", 29))
sketch6.addConstraint(Sketcher.Constraint("Vertical", 30))
sketch6.addConstraint(Sketcher.Constraint("Horizontal", 31))
sketch6.addConstraint(Sketcher.Constraint("Vertical", 32))
sketch6.addConstraint(Sketcher.Constraint("Horizontal", 33))
sketch6.addConstraint(Sketcher.Constraint("Vertical", 34))
sketch6.addConstraint(Sketcher.Constraint("Horizontal", 35))
sketch6.addConstraint(Sketcher.Constraint("Vertical", 36))
sketch6.addConstraint(Sketcher.Constraint("Horizontal", 37))
sketch6.addConstraint(Sketcher.Constraint("Vertical", 38))
sketch6.addConstraint(Sketcher.Constraint("Horizontal", 39))
sketch6.addConstraint(Sketcher.Constraint("Vertical", 40))
sketch6.addConstraint(Sketcher.Constraint("Horizontal", 41))
sketch6.addConstraint(Sketcher.Constraint("Vertical", 42))
sketch6.addConstraint(Sketcher.Constraint("Horizontal", 43))
sketch6.addConstraint(Sketcher.Constraint("Vertical", 44))
sketch6.addConstraint(Sketcher.Constraint("Horizontal", 45))
sketch6.addConstraint(Sketcher.Constraint("Vertical", 46))
sketch6.addConstraint(Sketcher.Constraint("Horizontal", 47))
sketch6.addConstraint(Sketcher.Constraint("Symmetric", 10, 2, 12, 2, -1, 1))
sketch6.addConstraint(Sketcher.Constraint("Symmetric", 8, 2, 14, 2, -1, 1))
sketch6.addConstraint(Sketcher.Constraint("Symmetric", 6, 2, 16, 2, -1, 1))
sketch6.addConstraint(Sketcher.Constraint("Symmetric", 4, 2, 18, 2, -1, 1))
sketch6.addConstraint(Sketcher.Constraint("Symmetric", 2, 2, 20, 2, -1, 1))
sketch6.addConstraint(Sketcher.Constraint("Symmetric", 0, 2, 22, 2, -1, 1))
sketch6.addConstraint(Sketcher.Constraint("Symmetric", 34, 2, 40, 2, -1, 1))
sketch6.addConstraint(Sketcher.Constraint("Symmetric", 32, 2, 42, 2, -1, 1))
sketch6.addConstraint(Sketcher.Constraint("Symmetric", 1, 2, 8, 2, -2))
sketch6.addConstraint(Sketcher.Constraint("Symmetric", 3, 2, 10, 2, -2))
sketch6.addConstraint(Sketcher.Constraint("Symmetric", 31, 2, 36, 2, -1))
sketch6.addConstraint(Sketcher.Constraint("Symmetric", 29, 2, 38, 2, -1))
sketch6.addConstraint(Sketcher.Constraint("Symmetric", 27, 2, 44, 2, -1))
sketch6.addConstraint(Sketcher.Constraint("Symmetric", 25, 2, 46, 2, -1))
sketch6.addConstraint(Sketcher.Constraint("Horizontal", 5, 2, 16, 2))
sketch6.addConstraint(Sketcher.Constraint("Horizontal", 25, 2, 28, 2))
sketch6.addConstraint(Sketcher.Constraint("Horizontal", 27, 2, 30, 2))
sketch6.addConstraint(Sketcher.Constraint("Horizontal", 29, 2, 32, 2))
sketch6.addConstraint(Sketcher.Constraint("Horizontal", 31, 2, 34, 2))
sketch6.addConstraint(Sketcher.Constraint("Vertical", 3, 2, 4, 2))
sketch6.addConstraint(Sketcher.Constraint("Vertical", 2, 2, 5, 2))
sketch6.addConstraint(Sketcher.Constraint("Vertical", 35, 2, 40, 2))
sketch6.addConstraint(Sketcher.Constraint("Equal", 27, 29))
sketch6.addConstraint(Sketcher.Constraint("Equal", 31, 33))
sketch6.addConstraint(Sketcher.Constraint("Equal", 47, 0))
sketch6.addConstraint(Sketcher.Constraint("Equal", 2, 4))
sketch6.addConstraint(Sketcher.Constraint("Equal", 23, 24))
sketch6.addConstraint(Sketcher.Constraint("DistanceX", 25, 1, 25, 2, Q("1.5 in")))
sketch6.addConstraint(Sketcher.Constraint("DistanceX", 0, 2, 8, 2, Q("17 in")))
sketch6.addConstraint(Sketcher.Constraint("DistanceX", 1, 1, 1, 2, Q("0.1875 in")))
sketch6.addConstraint(Sketcher.Constraint("DistanceX", -1, 1, 28, 2, Q("4.92 in")))
sketch6.addConstraint(Sketcher.Constraint("DistanceX", 24, 2, -1, 1, Q("6.415 in")))
sketch6.addConstraint(Sketcher.Constraint("DistanceY", 24, 2, -1, 1, Q("8.40625 in")))
sketch6.addConstraint(Sketcher.Constraint("DistanceY", -1, 1, 0, 2, Q("162.983333 mm")))
pocket5 = body.newObject("PartDesign::Pocket", "Pocket004")
pocket5.Profile = sketch6
pocket5.Length = Q("0.0625 in")
pocket5.Reversed = True
doc.recompute()

fillet = body.newObject("PartDesign::Fillet", "Fillet")
fillet.Base = (pocket5, edges_at(pocket5, [
    (228.6, 0.794, 228.6),
    (-228.6, 0.794, 228.6),
    (-228.6, 0.794, -228.6),
    (228.6, 0.794, -228.6),
]))
fillet.Radius = Q("0.75 in")

doc.recompute()
